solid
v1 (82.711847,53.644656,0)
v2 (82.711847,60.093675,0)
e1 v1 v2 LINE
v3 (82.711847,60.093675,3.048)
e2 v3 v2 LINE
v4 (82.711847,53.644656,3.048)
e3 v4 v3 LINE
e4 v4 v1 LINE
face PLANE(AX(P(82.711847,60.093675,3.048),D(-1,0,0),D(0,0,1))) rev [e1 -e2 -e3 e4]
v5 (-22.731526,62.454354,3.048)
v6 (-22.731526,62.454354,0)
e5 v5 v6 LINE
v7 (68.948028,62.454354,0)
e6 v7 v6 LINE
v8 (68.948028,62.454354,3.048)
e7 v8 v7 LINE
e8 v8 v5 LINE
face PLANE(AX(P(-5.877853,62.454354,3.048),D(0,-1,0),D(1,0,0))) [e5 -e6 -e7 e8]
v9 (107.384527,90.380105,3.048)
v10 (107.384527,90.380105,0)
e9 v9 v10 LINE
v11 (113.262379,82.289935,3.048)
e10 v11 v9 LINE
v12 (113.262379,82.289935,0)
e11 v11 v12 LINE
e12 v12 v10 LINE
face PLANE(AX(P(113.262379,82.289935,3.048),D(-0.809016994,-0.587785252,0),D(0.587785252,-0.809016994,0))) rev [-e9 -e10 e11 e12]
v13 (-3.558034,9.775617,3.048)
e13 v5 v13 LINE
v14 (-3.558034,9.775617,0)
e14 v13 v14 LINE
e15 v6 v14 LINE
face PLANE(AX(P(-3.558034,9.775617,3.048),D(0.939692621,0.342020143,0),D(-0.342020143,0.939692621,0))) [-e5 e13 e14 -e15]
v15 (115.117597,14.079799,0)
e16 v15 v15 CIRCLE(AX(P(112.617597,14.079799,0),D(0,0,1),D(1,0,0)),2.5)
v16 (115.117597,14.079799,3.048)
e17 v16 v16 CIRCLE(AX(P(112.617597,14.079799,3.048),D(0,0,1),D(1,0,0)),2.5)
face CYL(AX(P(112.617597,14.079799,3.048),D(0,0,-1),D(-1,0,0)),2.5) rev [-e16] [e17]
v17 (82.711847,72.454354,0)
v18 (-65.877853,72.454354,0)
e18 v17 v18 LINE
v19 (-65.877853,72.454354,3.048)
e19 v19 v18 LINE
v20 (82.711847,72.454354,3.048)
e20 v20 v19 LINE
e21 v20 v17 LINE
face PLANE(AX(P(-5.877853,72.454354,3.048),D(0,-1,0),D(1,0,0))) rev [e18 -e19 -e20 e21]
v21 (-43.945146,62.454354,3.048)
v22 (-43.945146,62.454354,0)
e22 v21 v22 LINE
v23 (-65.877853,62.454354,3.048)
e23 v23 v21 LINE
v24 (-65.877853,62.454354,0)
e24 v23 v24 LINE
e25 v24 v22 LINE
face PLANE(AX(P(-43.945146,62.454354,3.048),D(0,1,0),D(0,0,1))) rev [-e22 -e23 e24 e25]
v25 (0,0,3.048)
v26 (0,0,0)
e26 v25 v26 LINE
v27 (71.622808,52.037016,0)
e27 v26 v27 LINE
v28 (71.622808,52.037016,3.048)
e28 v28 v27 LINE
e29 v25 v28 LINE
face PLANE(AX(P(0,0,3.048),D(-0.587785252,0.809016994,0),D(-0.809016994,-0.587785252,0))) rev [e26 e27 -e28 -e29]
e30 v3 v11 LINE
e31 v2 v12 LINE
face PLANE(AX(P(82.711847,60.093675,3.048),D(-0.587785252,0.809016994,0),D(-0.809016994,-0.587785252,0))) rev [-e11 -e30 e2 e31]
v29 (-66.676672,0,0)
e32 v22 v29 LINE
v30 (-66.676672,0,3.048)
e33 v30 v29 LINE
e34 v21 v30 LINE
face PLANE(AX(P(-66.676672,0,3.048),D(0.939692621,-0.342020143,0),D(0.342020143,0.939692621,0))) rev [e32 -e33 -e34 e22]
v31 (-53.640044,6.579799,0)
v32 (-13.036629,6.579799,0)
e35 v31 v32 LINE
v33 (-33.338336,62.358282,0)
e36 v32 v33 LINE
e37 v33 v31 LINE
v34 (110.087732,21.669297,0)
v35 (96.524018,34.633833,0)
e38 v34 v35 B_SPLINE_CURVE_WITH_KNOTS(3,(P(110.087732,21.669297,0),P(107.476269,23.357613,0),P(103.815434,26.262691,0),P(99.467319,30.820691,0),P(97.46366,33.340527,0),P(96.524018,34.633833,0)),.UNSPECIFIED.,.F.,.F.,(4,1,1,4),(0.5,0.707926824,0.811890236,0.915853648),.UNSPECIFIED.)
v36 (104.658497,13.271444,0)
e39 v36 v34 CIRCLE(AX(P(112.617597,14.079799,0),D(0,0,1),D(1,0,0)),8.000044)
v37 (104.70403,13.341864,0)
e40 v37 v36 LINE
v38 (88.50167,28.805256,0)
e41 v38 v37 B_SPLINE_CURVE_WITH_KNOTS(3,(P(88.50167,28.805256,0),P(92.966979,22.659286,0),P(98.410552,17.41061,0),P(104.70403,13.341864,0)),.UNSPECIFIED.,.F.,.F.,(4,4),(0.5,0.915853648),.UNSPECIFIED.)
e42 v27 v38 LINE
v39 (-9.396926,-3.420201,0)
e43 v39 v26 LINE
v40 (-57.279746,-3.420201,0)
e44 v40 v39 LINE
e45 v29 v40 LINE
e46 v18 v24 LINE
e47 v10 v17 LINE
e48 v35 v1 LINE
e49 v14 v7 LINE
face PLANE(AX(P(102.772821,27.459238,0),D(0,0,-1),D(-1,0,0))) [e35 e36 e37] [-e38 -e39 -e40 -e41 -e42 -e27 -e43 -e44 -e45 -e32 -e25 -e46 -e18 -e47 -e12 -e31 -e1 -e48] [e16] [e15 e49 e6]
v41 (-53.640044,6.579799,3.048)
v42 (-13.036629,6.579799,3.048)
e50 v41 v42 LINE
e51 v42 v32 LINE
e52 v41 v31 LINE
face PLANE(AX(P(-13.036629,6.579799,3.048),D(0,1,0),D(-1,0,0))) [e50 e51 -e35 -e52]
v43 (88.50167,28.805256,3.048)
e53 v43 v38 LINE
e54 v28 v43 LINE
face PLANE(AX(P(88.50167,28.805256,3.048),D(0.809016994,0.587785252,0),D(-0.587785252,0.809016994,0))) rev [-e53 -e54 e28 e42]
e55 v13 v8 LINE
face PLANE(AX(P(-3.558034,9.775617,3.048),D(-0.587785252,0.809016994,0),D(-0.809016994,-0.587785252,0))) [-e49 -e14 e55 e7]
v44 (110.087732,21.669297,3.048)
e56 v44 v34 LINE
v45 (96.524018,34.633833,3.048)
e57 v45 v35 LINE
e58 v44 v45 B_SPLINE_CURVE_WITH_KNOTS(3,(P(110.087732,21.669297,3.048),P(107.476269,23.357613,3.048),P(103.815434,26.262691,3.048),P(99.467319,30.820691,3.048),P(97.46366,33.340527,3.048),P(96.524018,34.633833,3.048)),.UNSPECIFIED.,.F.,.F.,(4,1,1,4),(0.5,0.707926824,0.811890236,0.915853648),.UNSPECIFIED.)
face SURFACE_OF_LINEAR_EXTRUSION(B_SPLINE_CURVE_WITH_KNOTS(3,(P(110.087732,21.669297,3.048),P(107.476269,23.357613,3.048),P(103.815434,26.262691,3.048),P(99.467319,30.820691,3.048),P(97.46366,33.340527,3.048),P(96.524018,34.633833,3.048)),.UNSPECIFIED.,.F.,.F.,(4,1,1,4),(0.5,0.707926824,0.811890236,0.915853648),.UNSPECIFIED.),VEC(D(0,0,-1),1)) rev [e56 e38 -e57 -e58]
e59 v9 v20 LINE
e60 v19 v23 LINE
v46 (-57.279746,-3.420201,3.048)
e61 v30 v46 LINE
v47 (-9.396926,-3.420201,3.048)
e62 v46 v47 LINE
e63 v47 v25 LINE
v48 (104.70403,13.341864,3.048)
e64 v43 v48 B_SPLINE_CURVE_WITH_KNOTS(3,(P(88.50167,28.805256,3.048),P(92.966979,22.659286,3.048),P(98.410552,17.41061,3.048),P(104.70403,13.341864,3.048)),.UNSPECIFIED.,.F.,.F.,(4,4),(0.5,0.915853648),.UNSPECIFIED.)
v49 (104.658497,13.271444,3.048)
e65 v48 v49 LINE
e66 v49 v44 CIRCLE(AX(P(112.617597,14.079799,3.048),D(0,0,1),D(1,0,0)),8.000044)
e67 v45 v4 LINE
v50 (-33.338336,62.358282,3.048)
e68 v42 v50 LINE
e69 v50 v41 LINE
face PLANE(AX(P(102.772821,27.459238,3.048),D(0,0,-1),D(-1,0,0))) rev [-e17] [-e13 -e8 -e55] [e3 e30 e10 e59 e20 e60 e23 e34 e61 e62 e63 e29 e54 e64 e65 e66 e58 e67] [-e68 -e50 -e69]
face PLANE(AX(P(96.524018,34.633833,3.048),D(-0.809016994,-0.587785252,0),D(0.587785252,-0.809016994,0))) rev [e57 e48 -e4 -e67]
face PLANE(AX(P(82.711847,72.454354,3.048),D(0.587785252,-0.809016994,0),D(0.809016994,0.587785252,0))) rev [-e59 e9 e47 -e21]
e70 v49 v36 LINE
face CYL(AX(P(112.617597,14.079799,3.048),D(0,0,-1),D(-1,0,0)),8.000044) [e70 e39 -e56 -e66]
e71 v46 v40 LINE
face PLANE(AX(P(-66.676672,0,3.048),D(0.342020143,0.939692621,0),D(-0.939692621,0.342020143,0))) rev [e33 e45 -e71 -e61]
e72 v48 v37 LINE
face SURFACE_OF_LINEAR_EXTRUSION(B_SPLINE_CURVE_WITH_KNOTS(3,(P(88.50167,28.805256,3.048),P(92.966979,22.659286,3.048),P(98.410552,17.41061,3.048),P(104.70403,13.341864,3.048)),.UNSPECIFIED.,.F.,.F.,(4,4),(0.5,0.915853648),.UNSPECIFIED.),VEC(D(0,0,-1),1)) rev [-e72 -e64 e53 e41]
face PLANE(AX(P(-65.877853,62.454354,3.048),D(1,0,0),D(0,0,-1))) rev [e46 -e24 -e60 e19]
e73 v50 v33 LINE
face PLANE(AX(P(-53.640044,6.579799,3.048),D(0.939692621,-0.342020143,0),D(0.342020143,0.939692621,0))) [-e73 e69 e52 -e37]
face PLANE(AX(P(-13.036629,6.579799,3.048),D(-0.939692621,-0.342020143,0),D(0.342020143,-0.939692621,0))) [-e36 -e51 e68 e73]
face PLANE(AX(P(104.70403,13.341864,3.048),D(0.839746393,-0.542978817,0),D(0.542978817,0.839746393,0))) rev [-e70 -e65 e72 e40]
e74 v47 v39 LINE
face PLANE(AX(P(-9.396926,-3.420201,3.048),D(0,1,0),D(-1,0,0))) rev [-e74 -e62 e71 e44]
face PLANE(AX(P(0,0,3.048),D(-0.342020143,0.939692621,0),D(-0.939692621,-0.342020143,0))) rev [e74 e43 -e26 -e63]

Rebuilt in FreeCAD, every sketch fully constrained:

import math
import FreeCAD as App
import Part
import Sketcher


def add_polygon(sketch, points):
    """Adds a closed chain of lines whose ends are joined by coincident constraints."""
    first, n = sketch.GeometryCount, len(points)
    for a, b in zip(points, points[1:] + points[:1]):
        sketch.addGeometry(Part.LineSegment(App.Vector(*a, 0), App.Vector(*b, 0)), False)
    for i in range(n):
        sketch.addConstraint(Sketcher.Constraint("Coincident", first + i, 2, first + (i + 1) % n, 1))

doc = App.newDocument("Part")
body = doc.addObject("PartDesign::Body", "Body")

# Sketch on XY plane
sketch1 = doc.addObject("Sketcher::SketchObject", "Sketch")
body.addObject(sketch1)
sketch1.AttachmentSupport = (doc.XY_Plane, [""])
sketch1.MapMode = "FlatFace"
sketch1.addGeometry(Part.LineSegment(App.Vector(0, 0, 0), App.Vector(71.622808, 52.037016, 0)), False)  # 0
sketch1.addGeometry(Part.LineSegment(App.Vector(71.622808, 52.037016, 0), App.Vector(88.50167, 28.805256, 0)), False)  # 1
sketch1.addGeometry(Part.BSplineCurve([App.Vector(88.50167, 28.805256, 0), App.Vector(92.966979, 22.659286, 0), App.Vector(98.410552, 17.41061, 0), App.Vector(104.70403, 13.341864, 0)], [4, 4], [0.5, 0.915853648], False, 3, [1, 1, 1, 1], False), False)  # 2
sketch1.addGeometry(Part.LineSegment(App.Vector(104.70403, 13.341864, 0), App.Vector(104.658497, 13.271444, 0)), False)  # 3
sketch1.addGeometry(Part.ArcOfCircle(Part.Circle(App.Vector(112.617597, 14.079799, 0), App.Vector(0, 0, 1), 8.000044), math.radians(-174.200721), math.radians(108.435166)), False)  # 4
sketch1.addGeometry(Part.BSplineCurve([App.Vector(96.524018, 34.633833, 0), App.Vector(97.46366, 33.340527, 0), App.Vector(99.467319, 30.820691, 0), App.Vector(103.815434, 26.262691, 0), App.Vector(107.476269, 23.357613, 0), App.Vector(110.087732, 21.669297, 0)], [4, 1, 1, 4], [0.5, 0.603963412, 0.707926824, 0.915853648], False, 3, [1, 1, 1, 1, 1, 1], False), False)  # 5
sketch1.addGeometry(Part.LineSegment(App.Vector(96.524018, 34.633833, 0), App.Vector(82.711847, 53.644656, 0)), False)  # 6
sketch1.addGeometry(Part.LineSegment(App.Vector(82.711847, 53.644656, 0), App.Vector(82.711847, 60.093675, 0)), False)  # 7
sketch1.addGeometry(Part.LineSegment(App.Vector(82.711847, 60.093675, 0), App.Vector(113.262379, 82.289935, 0)), False)  # 8
sketch1.addGeometry(Part.LineSegment(App.Vector(113.262379, 82.289935, 0), App.Vector(107.384527, 90.380105, 0)), False)  # 9
sketch1.addGeometry(Part.LineSegment(App.Vector(107.384527, 90.380105, 0), App.Vector(82.711847, 72.454354, 0)), False)  # 10
sketch1.addGeometry(Part.LineSegment(App.Vector(82.711847, 72.454354, 0), App.Vector(-65.877853, 72.454354, 0)), False)  # 11
sketch1.addGeometry(Part.LineSegment(App.Vector(-65.877853, 72.454354, 0), App.Vector(-65.877853, 62.454354, 0)), False)  # 12
sketch1.addGeometry(Part.LineSegment(App.Vector(-65.877853, 62.454354, 0), App.Vector(-43.945146, 62.454354, 0)), False)  # 13
sketch1.addGeometry(Part.LineSegment(App.Vector(-43.945146, 62.454354, 0), App.Vector(-66.676672, 0, 0)), False)  # 14
sketch1.addGeometry(Part.LineSegment(App.Vector(-66.676672, 0, 0), App.Vector(-57.279746, -3.420201, 0)), False)  # 15
sketch1.addGeometry(Part.LineSegment(App.Vector(-57.279746, -3.420201, 0), App.Vector(-9.396926, -3.420201, 0)), False)  # 16
sketch1.addGeometry(Part.LineSegment(App.Vector(-9.396926, -3.420201, 0), App.Vector(0, 0, 0)), False)  # 17
add_polygon(sketch1, [(-33.338336, 62.358282), (-13.036629, 6.579799), (-53.640044, 6.579799)])  # lines 18-20
sketch1.addGeometry(Part.Circle(App.Vector(112.617597, 14.079799, 0), App.Vector(0, 0, 1), 2.5), False)  # 21
add_polygon(sketch1, [(68.948028, 62.454354), (-3.558034, 9.775617), (-22.731526, 62.454354)])  # lines 22-24
sketch1.addConstraint(Sketcher.Constraint("Block", 2))
sketch1.addConstraint(Sketcher.Constraint("Block", 5))
sketch1.addConstraint(Sketcher.Constraint("Coincident", 0, 2, 1, 1))
sketch1.addConstraint(Sketcher.Constraint("Coincident", 1, 2, 2, 1))
sketch1.addConstraint(Sketcher.Constraint("Coincident", 2, 2, 3, 1))
sketch1.addConstraint(Sketcher.Constraint("Coincident", 3, 2, 4, 1))
sketch1.addConstraint(Sketcher.Constraint("Coincident", 4, 2, 5, 2))
sketch1.addConstraint(Sketcher.Constraint("Coincident", 5, 1, 6, 1))
sketch1.addConstraint(Sketcher.Constraint("Coincident", 6, 2, 7, 1))
sketch1.addConstraint(Sketcher.Constraint("Coincident", 7, 2, 8, 1))
sketch1.addConstraint(Sketcher.Constraint("Coincident", 8, 2, 9, 1))
sketch1.addConstraint(Sketcher.Constraint("Coincident", 9, 2, 10, 1))
sketch1.addConstraint(Sketcher.Constraint("Coincident", 10, 2, 11, 1))
sketch1.addConstraint(Sketcher.Constraint("Coincident", 11, 2, 12, 1))
sketch1.addConstraint(Sketcher.Constraint("Coincident", 12, 2, 13, 1))
sketch1.addConstraint(Sketcher.Constraint("Coincident", 13, 2, 14, 1))
sketch1.addConstraint(Sketcher.Constraint("Coincident", 14, 2, 15, 1))
sketch1.addConstraint(Sketcher.Constraint("Coincident", 15, 2, 16, 1))
sketch1.addConstraint(Sketcher.Constraint("Coincident", 16, 2, 17, 1))
sketch1.addConstraint(Sketcher.Constraint("Coincident", 17, 2, 0, 1))
sketch1.addConstraint(Sketcher.Constraint("Vertical", 7))
sketch1.addConstraint(Sketcher.Constraint("Horizontal", 11))
sketch1.addConstraint(Sketcher.Constraint("Vertical", 12))
sketch1.addConstraint(Sketcher.Constraint("Horizontal", 13))
sketch1.addConstraint(Sketcher.Constraint("Horizontal", 16))
sketch1.addConstraint(Sketcher.Constraint("Horizontal", 19))
sketch1.addConstraint(Sketcher.Constraint("Horizontal", 24))
sketch1.addConstraint(Sketcher.Constraint("Coincident", 17, 2, -1, 1))
sketch1.addConstraint(Sketcher.Constraint("Coincident", 21, 3, 4, 3))
sketch1.addConstraint(Sketcher.Constraint("PointOnObject", 14, 2, -1))
sketch1.addConstraint(Sketcher.Constraint("Diameter", 21, 5.0))
sketch1.addConstraint(Sketcher.Constraint("DistanceY", 12, 2, 12, 1, 10.0))
sketch1.addConstraint(Sketcher.Constraint("Distance", 9, 10.0))
sketch1.addConstraint(Sketcher.Constraint("Distance", 15, 10.0))
sketch1.addConstraint(Sketcher.Constraint("Distance", 17, 10.0))
sketch1.addConstraint(Sketcher.Constraint("DistanceY", 16, 2, 18, 2, 10.0))
sketch1.addConstraint(Sketcher.Constraint("DistanceY", 23, 2, 11, 2, 10.0))
sketch1.addConstraint(Sketcher.Constraint("DistanceX", 11, 2, 11, 1, 148.5897))
sketch1.addConstraint(Sketcher.Constraint("Radius", 4, 8.000044))
sketch1.addConstraint(Sketcher.Constraint("DistanceX", 16, 1, 16, 2, 47.88282))
sketch1.addConstraint(Sketcher.Constraint("DistanceY", 7, 1, 7, 2, 6.449019))
sketch1.addConstraint(Sketcher.Constraint("DistanceY", -1, 1, 4, 3, 14.079799))
sketch1.addConstraint(Sketcher.Constraint("DistanceY", 15, 2, -1, 1, 3.420201))
sketch1.addConstraint(Sketcher.Constraint("DistanceX", 3, 2, 21, 3, 7.9591))
sketch1.addConstraint(Sketcher.Constraint("DistanceY", 1, 2, 6, 2, 24.8394))
sketch1.addConstraint(Sketcher.Constraint("DistanceY", 6, 2, 10, 2, 18.809699))
sketch1.addConstraint(Sketcher.Constraint("DistanceX", 11, 2, 7, 2, 148.5897))
sketch1.addConstraint(Sketcher.Constraint("DistanceX", 15, 2, 13, 2, 13.3346))
sketch1.addConstraint(Sketcher.Constraint("Distance", 0, 88.53066))
sketch1.addConstraint(Sketcher.Constraint("Distance", 6, 23.498669))
sketch1.addConstraint(Sketcher.Constraint("Distance", 10, 30.497109))
sketch1.addConstraint(Sketcher.Constraint("Distance", 22, 89.622421))
sketch1.addConstraint(Sketcher.Constraint("Distance", 23, 56.059541))
sketch1.addConstraint(Sketcher.Constraint("DistanceX", 19, 2, 19, 1, 40.603415))
sketch1.addConstraint(Sketcher.Constraint("DistanceX", 24, 1, 24, 2, 91.679554))
sketch1.addConstraint(Sketcher.Constraint("DistanceX", -1, 1, 0, 2, 71.622808))
sketch1.addConstraint(Sketcher.Constraint("DistanceX", -1, 1, 8, 2, 113.262379))
sketch1.addConstraint(Sketcher.Constraint("DistanceX", 18, 2, -1, 1, 13.036629))
sketch1.addConstraint(Sketcher.Constraint("DistanceX", -1, 1, 24, 2, 68.948028))
sketch1.addConstraint(Sketcher.Constraint("DistanceY", 7, 2, 8, 2, 22.196261))
sketch1.addConstraint(Sketcher.Constraint("DistanceX", 13, 2, 20, 2, 10.60681))
sketch1.addConstraint(Sketcher.Constraint("Distance", 18, 59.358222))
pad1 = doc.addObject("PartDesign::Pad", "Pad")
body.addObject(pad1)
pad1.Profile = sketch1
pad1.Length = 3.048

doc.recompute()
